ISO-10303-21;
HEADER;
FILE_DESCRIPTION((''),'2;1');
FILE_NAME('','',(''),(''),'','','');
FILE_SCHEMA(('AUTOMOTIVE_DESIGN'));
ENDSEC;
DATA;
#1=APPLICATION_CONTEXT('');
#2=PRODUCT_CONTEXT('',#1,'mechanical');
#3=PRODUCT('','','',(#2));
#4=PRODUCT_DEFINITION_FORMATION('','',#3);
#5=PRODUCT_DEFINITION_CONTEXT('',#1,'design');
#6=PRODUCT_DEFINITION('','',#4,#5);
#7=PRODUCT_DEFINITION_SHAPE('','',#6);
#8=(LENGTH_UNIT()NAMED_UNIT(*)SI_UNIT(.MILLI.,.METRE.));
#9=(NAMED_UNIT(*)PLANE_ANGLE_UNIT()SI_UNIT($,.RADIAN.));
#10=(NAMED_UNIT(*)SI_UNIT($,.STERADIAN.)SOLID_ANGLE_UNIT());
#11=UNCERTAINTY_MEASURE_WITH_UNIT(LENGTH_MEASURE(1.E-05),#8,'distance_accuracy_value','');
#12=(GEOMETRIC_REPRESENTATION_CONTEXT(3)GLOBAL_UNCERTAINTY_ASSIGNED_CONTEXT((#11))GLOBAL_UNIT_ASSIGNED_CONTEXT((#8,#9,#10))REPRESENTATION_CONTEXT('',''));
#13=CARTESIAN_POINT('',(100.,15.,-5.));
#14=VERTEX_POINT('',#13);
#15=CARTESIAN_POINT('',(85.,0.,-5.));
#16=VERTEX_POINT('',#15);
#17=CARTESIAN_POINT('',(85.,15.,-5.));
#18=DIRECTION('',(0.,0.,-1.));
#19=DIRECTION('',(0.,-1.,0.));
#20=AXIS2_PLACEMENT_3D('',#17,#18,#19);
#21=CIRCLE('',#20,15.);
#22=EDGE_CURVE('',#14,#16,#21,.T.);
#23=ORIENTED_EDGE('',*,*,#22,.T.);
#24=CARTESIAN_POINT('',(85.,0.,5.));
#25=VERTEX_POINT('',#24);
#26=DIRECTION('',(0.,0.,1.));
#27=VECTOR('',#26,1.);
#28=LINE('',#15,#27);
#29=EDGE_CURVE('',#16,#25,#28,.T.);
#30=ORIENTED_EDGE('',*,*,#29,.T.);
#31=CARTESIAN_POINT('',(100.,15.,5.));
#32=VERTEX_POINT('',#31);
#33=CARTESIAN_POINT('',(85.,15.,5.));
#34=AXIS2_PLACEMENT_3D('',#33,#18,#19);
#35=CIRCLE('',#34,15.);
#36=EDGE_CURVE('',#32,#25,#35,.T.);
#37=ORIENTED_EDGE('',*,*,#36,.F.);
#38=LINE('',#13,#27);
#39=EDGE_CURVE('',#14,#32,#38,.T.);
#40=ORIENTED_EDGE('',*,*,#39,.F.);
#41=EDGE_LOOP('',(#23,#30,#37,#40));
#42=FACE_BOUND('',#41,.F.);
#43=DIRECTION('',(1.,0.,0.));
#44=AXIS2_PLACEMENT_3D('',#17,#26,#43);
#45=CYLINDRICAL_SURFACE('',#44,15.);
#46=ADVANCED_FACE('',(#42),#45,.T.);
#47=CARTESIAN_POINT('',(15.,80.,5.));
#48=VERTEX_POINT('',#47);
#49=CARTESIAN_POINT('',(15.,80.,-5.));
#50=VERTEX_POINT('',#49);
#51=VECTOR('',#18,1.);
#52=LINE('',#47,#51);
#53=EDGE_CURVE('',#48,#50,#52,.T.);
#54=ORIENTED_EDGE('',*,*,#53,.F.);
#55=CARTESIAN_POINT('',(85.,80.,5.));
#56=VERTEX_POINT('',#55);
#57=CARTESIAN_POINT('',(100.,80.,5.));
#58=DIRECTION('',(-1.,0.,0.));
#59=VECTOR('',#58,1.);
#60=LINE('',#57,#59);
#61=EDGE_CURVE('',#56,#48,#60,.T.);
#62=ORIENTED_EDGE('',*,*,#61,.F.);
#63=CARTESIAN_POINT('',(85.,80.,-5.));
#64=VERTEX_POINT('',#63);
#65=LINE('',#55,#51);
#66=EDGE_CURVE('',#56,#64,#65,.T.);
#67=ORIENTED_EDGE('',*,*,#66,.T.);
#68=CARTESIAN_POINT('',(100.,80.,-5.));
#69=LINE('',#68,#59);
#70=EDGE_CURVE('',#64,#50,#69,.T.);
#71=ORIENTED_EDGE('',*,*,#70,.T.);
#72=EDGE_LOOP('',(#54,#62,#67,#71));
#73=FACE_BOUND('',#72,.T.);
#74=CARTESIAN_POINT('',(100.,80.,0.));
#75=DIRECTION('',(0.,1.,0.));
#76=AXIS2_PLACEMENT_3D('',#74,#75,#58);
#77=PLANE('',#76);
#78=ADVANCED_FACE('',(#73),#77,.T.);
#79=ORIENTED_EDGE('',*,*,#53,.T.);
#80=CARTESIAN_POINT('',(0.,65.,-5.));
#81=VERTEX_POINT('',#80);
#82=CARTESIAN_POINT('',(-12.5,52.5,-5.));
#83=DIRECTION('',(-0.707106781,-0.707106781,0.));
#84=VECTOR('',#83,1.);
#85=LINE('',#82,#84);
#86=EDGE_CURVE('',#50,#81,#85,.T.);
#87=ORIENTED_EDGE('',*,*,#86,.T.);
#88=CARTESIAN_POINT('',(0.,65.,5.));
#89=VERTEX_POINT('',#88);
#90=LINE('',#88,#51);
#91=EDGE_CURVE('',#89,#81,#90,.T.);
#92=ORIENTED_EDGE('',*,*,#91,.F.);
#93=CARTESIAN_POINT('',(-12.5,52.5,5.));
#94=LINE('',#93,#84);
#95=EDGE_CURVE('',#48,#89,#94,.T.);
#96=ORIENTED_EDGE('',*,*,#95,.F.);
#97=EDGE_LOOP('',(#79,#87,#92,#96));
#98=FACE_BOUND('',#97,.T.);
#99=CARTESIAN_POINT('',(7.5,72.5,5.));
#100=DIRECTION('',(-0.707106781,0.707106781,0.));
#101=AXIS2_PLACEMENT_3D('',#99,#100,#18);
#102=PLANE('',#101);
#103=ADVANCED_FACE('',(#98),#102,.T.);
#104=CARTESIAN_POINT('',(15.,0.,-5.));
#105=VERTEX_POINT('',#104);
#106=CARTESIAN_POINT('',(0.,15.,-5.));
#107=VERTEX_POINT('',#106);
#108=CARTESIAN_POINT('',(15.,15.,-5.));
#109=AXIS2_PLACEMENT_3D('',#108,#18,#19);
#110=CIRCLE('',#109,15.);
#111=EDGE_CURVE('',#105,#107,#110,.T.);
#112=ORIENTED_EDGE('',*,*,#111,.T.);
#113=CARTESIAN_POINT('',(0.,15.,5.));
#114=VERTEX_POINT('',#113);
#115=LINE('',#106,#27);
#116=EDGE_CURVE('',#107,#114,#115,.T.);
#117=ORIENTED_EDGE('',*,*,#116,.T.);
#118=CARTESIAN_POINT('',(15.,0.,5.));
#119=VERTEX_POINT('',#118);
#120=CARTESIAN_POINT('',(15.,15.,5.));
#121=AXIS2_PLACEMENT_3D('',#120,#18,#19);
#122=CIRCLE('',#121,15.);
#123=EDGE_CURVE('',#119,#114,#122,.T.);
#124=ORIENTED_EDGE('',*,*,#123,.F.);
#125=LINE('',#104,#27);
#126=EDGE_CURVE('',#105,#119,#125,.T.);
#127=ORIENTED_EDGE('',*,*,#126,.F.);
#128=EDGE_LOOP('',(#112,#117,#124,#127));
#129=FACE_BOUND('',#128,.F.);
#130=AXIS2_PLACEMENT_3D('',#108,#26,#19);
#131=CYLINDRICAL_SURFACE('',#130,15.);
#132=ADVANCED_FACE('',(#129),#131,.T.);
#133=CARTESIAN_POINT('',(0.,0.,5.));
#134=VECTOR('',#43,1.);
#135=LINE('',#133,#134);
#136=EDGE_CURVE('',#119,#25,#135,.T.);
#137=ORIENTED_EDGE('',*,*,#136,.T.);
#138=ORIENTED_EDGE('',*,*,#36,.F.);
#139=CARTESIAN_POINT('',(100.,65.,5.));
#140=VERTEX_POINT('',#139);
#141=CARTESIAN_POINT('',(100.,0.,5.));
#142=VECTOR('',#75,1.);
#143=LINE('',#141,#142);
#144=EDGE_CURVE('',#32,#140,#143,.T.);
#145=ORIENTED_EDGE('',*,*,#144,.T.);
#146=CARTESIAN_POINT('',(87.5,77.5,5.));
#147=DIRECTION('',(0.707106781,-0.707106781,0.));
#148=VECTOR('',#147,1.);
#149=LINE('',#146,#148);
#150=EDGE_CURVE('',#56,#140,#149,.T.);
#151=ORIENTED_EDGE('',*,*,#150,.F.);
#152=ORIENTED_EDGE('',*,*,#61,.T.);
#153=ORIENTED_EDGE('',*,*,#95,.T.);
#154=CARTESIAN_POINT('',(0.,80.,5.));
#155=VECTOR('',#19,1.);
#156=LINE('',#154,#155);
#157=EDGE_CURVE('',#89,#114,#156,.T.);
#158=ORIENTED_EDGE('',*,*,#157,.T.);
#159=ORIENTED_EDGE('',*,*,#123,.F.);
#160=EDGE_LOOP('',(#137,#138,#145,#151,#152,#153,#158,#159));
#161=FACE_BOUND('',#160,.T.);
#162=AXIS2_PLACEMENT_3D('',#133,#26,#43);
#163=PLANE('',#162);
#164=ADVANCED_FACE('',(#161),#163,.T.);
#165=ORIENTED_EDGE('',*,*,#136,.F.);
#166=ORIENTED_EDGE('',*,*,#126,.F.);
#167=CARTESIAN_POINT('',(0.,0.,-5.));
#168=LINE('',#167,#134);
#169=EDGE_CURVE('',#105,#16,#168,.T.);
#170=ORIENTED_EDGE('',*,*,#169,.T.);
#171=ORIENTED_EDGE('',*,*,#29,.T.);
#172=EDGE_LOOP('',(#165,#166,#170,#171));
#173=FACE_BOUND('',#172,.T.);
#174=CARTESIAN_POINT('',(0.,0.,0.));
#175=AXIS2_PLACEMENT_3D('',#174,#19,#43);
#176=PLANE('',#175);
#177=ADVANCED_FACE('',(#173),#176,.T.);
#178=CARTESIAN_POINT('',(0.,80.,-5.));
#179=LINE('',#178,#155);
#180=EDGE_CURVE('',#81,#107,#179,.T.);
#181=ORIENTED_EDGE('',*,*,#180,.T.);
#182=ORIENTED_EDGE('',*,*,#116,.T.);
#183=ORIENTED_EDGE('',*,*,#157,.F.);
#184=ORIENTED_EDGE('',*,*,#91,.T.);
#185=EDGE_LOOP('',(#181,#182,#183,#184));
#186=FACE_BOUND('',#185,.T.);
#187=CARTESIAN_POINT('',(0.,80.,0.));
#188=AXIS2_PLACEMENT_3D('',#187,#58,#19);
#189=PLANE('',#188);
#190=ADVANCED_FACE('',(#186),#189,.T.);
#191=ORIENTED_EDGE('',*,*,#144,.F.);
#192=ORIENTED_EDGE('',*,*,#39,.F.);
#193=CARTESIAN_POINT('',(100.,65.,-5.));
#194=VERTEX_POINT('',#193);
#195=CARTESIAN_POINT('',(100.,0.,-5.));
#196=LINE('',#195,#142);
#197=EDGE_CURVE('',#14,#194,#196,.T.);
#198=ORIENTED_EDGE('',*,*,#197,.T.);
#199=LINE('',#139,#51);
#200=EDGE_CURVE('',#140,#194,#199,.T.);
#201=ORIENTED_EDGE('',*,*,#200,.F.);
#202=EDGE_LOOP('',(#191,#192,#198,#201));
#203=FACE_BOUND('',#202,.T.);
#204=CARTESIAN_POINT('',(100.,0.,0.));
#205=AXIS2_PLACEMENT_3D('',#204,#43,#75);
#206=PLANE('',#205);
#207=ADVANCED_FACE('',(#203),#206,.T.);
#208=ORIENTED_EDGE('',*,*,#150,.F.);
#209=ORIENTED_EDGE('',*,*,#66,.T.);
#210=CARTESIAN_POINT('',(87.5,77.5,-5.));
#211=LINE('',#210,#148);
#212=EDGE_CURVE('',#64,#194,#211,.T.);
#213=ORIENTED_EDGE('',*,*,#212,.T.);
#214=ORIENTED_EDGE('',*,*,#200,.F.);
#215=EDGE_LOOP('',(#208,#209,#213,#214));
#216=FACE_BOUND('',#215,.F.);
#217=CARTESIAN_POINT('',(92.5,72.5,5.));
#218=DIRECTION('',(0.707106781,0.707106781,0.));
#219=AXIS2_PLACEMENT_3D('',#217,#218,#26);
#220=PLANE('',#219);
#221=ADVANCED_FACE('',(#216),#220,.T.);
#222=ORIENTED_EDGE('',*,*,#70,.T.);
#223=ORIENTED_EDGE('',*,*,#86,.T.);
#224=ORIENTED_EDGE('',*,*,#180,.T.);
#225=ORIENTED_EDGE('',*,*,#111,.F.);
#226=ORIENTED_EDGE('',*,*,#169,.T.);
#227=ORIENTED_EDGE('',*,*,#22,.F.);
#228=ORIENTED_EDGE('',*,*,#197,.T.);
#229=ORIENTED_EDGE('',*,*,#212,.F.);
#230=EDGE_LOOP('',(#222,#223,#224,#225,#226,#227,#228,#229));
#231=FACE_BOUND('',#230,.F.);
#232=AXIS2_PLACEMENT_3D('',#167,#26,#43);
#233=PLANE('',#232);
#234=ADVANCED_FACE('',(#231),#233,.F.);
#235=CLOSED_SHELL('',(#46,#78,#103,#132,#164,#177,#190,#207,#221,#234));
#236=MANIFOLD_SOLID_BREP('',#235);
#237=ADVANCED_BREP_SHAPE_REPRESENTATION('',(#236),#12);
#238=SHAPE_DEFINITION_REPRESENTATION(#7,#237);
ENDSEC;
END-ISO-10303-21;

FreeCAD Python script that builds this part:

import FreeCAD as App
import Part
import Sketcher

V = App.Vector
Q = App.Units.Quantity


def edges_at(feature, points):
    """Names of the edges that pass closest to the given points."""
    edges = feature.Shape.Edges
    near = lambda p: min(range(len(edges)), key=lambda i: edges[i].distToShape(Part.Vertex(*p))[0])
    return sorted({f"Edge{near(p) + 1}" for p in points})

doc = App.newDocument("Part")
body = doc.addObject("PartDesign::Body", "Body")

sketch1 = body.newObject("Sketcher::SketchObject", "Sketch")
sketch1.AttachmentSupport = (doc.getObject("XY_Plane"), [""])
sketch1.MapMode = "FlatFace"
sketch1.addGeometry([
    Part.LineSegment(V(0, 80, 0), V(0, 0, 0)),
    Part.LineSegment(V(0, 0, 0), V(100, 0, 0)),
    Part.LineSegment(V(100, 0, 0), V(100, 80, 0)),
    Part.LineSegment(V(100, 80, 0), V(0, 80, 0)),
], False)
sketch1.addConstraint([
    Sketcher.Constraint("Coincident", 0, 2, 1, 1),
    Sketcher.Constraint("Coincident", 1, 2, 2, 1),
    Sketcher.Constraint("Coincident", 2, 2, 3, 1),
    Sketcher.Constraint("Coincident", 3, 2, 0, 1),
    Sketcher.Constraint("Vertical", 0),
    Sketcher.Constraint("Horizontal", 1),
    Sketcher.Constraint("Vertical", 2),
    Sketcher.Constraint("Horizontal", 3),
    Sketcher.Constraint("Coincident", 0, 2, -1, 1),
    Sketcher.Constraint("DistanceX", 1, 1, 1, 2, Q("100 mm")),
    Sketcher.Constraint("DistanceY", 0, 2, 0, 1, Q("80 mm")),
])
pad1 = body.newObject("PartDesign::Pad", "Pad")
pad1.Profile = sketch1
pad1.Length = 10
pad1.Midplane = True
doc.recompute()

chamfer = body.newObject("PartDesign::Chamfer", "Chamfer")
chamfer.Base = (pad1, edges_at(pad1, [(100, 80, 0)]))
chamfer.Size = 15
doc.recompute()

chamfer2 = body.newObject("PartDesign::Chamfer", "Chamfer001")
chamfer2.Base = (chamfer, edges_at(chamfer, [(0, 80, 0)]))
chamfer2.Size = 15
doc.recompute()

fillet = body.newObject("PartDesign::Fillet", "Fillet")
fillet.Base = (chamfer2, edges_at(chamfer2, [(100, 0, 0)]))
fillet.Radius = 15
doc.recompute()

fillet2 = body.newObject("PartDesign::Fillet", "Fillet001")
fillet2.Base = (fillet, edges_at(fillet, [(0, 0, 0)]))
fillet2.Radius = 15

doc.recompute()
